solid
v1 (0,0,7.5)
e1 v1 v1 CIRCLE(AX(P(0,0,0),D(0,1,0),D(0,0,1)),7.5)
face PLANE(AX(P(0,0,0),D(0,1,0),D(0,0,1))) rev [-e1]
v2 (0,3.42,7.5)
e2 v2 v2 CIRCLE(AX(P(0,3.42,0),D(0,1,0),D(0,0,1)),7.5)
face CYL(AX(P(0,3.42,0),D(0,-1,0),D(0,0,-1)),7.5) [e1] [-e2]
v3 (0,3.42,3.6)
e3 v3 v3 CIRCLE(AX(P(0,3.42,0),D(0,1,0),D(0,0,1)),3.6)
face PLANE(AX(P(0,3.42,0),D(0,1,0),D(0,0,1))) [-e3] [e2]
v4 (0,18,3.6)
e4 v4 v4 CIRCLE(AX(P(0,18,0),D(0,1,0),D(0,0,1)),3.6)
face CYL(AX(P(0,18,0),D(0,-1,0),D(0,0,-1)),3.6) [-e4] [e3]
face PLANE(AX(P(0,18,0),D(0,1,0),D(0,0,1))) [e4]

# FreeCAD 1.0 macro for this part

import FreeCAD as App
import Part
import Sketcher

V = App.Vector
Q = App.Units.Quantity

doc = App.newDocument("Part")
body = doc.addObject("PartDesign::Body", "Body")

sketch1 = body.newObject("Sketcher::SketchObject", "Sketch")
sketch1.AttachmentSupport = (doc.getObject("XZ_Plane"), [""])
sketch1.MapMode = "FlatFace"
sketch1.addGeometry(Part.Circle(V(0, 0, 0), V(0, 0, 1), 7.5), False)
sketch1.addGeometry(Part.Circle(V(0, 0, 0), V(0, 0, 1), 3.6), False)
sketch1.addConstraint(Sketcher.Constraint("Coincident", 0, 3, -1, 1))
sketch1.addConstraint(Sketcher.Constraint("Coincident", 1, 3, -1, 1))
sketch1.addConstraint(Sketcher.Constraint("Diameter", 0, Q("15 mm")))
sketch1.addConstraint(Sketcher.Constraint("Diameter", 1, Q("7.2 mm")))
pad1 = body.newObject("PartDesign::Pad", "Pad")
pad1.Profile = sketch1
pad1.Length = 3.42
pad1.Reversed = True

sketch2 = body.newObject("Sketcher::SketchObject", "Sketch001")
sketch2.AttachmentSupport = (doc.getObject("XZ_Plane"), [""])
sketch2.MapMode = "FlatFace"
sketch2.addGeometry(Part.Circle(V(0, 0, 0), V(0, 0, 1), 3.6), False)
sketch2.addConstraint(Sketcher.Constraint("Coincident", 0, 3, -1, 1))
sketch2.addConstraint(Sketcher.Constraint("Diameter", 0, Q("7.2 mm")))
pad2 = body.newObject("PartDesign::Pad", "Pad001")
pad2.Profile = sketch2
pad2.Length = 18
pad2.Reversed = True

doc.recompute()
